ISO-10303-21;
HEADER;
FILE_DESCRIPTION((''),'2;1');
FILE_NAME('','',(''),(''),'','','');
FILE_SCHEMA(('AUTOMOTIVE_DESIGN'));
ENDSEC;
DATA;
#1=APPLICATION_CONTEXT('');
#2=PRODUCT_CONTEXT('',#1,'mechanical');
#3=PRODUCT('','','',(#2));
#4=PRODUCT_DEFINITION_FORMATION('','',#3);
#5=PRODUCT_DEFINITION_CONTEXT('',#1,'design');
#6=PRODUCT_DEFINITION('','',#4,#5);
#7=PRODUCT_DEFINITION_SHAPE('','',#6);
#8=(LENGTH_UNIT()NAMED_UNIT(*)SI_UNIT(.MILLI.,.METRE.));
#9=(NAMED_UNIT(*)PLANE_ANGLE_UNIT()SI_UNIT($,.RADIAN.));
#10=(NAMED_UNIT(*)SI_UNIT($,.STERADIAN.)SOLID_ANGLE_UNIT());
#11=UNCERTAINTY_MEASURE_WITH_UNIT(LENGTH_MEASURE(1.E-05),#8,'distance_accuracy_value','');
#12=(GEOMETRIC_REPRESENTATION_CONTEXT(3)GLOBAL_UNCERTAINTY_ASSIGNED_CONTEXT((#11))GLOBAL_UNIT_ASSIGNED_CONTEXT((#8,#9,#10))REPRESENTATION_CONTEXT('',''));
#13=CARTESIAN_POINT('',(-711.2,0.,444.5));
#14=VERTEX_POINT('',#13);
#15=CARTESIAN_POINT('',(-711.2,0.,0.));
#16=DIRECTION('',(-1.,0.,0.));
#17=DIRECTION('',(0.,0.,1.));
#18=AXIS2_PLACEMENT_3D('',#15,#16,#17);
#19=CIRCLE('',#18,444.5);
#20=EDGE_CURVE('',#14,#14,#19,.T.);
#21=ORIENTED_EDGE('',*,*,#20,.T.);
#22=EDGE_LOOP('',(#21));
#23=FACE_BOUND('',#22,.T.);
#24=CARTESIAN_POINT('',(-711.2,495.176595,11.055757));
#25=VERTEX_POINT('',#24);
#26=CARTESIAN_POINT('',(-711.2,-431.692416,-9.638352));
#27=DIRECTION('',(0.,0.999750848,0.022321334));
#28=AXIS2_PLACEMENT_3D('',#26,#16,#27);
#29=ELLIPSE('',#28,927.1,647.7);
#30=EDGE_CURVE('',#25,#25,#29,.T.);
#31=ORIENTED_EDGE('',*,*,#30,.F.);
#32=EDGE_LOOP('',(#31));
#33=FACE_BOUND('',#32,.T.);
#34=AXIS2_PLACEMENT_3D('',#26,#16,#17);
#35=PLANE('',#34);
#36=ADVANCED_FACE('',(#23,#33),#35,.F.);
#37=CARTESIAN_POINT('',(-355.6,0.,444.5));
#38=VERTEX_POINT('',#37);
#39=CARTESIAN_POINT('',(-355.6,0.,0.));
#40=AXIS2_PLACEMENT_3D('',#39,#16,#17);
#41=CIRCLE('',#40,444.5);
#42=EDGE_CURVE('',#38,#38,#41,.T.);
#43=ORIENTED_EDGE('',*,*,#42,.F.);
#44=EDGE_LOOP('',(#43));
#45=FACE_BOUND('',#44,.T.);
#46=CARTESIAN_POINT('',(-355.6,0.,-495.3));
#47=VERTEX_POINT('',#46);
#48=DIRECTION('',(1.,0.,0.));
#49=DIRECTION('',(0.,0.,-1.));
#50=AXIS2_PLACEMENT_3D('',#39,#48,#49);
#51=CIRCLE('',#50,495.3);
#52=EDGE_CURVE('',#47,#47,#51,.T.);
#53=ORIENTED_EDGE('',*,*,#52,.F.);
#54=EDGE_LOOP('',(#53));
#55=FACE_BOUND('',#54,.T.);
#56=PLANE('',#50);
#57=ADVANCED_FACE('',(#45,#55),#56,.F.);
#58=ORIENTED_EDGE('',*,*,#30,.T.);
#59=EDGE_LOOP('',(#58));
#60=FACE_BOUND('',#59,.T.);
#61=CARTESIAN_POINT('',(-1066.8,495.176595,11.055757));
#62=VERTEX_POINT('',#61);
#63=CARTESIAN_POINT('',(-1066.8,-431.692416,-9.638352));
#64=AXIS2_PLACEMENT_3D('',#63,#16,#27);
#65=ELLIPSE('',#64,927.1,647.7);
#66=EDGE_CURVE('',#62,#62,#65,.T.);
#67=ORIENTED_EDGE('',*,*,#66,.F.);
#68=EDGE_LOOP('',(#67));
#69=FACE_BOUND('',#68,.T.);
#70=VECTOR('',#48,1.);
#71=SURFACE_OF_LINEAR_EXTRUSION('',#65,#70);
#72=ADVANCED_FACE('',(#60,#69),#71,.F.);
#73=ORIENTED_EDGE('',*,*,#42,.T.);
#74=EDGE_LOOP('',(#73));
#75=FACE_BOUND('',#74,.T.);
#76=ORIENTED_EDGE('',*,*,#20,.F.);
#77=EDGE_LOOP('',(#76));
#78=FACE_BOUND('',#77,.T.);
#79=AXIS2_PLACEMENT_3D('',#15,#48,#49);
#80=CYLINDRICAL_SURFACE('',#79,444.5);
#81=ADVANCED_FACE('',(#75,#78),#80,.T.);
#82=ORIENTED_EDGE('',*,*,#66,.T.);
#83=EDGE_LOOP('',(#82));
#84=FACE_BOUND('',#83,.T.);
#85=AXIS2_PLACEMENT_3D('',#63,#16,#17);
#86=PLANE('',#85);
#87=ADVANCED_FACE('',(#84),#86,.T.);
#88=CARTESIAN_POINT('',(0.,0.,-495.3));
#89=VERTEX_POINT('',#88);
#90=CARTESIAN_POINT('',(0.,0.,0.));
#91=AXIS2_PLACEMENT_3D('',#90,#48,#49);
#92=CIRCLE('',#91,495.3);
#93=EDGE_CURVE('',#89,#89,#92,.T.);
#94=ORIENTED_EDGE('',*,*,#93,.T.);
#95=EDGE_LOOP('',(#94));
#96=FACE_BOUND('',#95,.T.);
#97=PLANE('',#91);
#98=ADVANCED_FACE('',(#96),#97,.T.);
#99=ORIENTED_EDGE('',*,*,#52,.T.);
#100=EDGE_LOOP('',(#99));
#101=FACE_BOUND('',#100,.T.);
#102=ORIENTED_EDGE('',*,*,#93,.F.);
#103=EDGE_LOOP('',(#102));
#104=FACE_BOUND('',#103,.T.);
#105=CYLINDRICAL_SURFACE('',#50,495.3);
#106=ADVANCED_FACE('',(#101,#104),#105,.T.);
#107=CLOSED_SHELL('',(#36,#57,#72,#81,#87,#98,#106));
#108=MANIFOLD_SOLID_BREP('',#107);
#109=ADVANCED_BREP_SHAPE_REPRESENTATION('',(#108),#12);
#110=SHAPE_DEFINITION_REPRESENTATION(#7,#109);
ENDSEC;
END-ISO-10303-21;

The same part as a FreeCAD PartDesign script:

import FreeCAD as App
import Part
import Sketcher
from FreeCAD import Vector
Q = App.Units.Quantity

doc = App.newDocument("Part")
body = doc.addObject("PartDesign::Body", "Body")

# Sketch on YZ plane
sketch1 = body.newObject("Sketcher::SketchObject", "Sketch")
sketch1.AttachmentSupport = (doc.getObject("YZ_Plane"), [""])
sketch1.MapMode = "FlatFace"
sketch1.addGeometry(Part.Circle(Vector(0, 0, 0), Vector(0, 0, 1), 495), False)
sketch1.addConstraint([
    Sketcher.Constraint("Coincident", 0, 3, -1, 1),
    Sketcher.Constraint("Diameter", 0, Q("39 in")),
])
pad1 = body.newObject("PartDesign::Pad", "Pad")
pad1.Profile = sketch1
pad1.Length = Q("14 in")
pad1.Reversed = True

# Sketch on YZ plane
sketch2 = body.newObject("Sketcher::SketchObject", "Sketch001")
sketch2.AttachmentSupport = (doc.getObject("YZ_Plane"), [""])
sketch2.MapMode = "FlatFace"
sketch2.AttachmentOffset = App.Placement(Vector(0, 0, -14 * 25.4), App.Rotation())
sketch2.addGeometry(Part.Circle(Vector(0, 0, 0), Vector(0, 0, 1), 444), False)
sketch2.addConstraint([
    Sketcher.Constraint("Coincident", 0, 3, -1, 1),
    Sketcher.Constraint("Diameter", 0, Q("35 in")),
])
pad2 = body.newObject("PartDesign::Pad", "Pad001")
pad2.Profile = sketch2
pad2.Length = Q("14 in")
pad2.Reversed = True

# Sketch on YZ plane
sketch3 = body.newObject("Sketcher::SketchObject", "Sketch002")
sketch3.AttachmentSupport = (doc.getObject("YZ_Plane"), [""])
sketch3.MapMode = "FlatFace"
sketch3.AttachmentOffset = App.Placement(Vector(0, 0, -28 * 25.4), App.Rotation())
sketch3.addGeometry(Part.Ellipse(Vector(-1358.561427, -30.33246, 0), Vector(-417.234888, -657.176976, 0), Vector(-431.692416, -9.638352, 0)), False)
sketch3.addConstraint(Sketcher.Constraint("Block", 0))
pad3 = body.newObject("PartDesign::Pad", "Pad002")
pad3.Profile = sketch3
pad3.Length = Q("14 in")
pad3.Reversed = True

doc.recompute()
